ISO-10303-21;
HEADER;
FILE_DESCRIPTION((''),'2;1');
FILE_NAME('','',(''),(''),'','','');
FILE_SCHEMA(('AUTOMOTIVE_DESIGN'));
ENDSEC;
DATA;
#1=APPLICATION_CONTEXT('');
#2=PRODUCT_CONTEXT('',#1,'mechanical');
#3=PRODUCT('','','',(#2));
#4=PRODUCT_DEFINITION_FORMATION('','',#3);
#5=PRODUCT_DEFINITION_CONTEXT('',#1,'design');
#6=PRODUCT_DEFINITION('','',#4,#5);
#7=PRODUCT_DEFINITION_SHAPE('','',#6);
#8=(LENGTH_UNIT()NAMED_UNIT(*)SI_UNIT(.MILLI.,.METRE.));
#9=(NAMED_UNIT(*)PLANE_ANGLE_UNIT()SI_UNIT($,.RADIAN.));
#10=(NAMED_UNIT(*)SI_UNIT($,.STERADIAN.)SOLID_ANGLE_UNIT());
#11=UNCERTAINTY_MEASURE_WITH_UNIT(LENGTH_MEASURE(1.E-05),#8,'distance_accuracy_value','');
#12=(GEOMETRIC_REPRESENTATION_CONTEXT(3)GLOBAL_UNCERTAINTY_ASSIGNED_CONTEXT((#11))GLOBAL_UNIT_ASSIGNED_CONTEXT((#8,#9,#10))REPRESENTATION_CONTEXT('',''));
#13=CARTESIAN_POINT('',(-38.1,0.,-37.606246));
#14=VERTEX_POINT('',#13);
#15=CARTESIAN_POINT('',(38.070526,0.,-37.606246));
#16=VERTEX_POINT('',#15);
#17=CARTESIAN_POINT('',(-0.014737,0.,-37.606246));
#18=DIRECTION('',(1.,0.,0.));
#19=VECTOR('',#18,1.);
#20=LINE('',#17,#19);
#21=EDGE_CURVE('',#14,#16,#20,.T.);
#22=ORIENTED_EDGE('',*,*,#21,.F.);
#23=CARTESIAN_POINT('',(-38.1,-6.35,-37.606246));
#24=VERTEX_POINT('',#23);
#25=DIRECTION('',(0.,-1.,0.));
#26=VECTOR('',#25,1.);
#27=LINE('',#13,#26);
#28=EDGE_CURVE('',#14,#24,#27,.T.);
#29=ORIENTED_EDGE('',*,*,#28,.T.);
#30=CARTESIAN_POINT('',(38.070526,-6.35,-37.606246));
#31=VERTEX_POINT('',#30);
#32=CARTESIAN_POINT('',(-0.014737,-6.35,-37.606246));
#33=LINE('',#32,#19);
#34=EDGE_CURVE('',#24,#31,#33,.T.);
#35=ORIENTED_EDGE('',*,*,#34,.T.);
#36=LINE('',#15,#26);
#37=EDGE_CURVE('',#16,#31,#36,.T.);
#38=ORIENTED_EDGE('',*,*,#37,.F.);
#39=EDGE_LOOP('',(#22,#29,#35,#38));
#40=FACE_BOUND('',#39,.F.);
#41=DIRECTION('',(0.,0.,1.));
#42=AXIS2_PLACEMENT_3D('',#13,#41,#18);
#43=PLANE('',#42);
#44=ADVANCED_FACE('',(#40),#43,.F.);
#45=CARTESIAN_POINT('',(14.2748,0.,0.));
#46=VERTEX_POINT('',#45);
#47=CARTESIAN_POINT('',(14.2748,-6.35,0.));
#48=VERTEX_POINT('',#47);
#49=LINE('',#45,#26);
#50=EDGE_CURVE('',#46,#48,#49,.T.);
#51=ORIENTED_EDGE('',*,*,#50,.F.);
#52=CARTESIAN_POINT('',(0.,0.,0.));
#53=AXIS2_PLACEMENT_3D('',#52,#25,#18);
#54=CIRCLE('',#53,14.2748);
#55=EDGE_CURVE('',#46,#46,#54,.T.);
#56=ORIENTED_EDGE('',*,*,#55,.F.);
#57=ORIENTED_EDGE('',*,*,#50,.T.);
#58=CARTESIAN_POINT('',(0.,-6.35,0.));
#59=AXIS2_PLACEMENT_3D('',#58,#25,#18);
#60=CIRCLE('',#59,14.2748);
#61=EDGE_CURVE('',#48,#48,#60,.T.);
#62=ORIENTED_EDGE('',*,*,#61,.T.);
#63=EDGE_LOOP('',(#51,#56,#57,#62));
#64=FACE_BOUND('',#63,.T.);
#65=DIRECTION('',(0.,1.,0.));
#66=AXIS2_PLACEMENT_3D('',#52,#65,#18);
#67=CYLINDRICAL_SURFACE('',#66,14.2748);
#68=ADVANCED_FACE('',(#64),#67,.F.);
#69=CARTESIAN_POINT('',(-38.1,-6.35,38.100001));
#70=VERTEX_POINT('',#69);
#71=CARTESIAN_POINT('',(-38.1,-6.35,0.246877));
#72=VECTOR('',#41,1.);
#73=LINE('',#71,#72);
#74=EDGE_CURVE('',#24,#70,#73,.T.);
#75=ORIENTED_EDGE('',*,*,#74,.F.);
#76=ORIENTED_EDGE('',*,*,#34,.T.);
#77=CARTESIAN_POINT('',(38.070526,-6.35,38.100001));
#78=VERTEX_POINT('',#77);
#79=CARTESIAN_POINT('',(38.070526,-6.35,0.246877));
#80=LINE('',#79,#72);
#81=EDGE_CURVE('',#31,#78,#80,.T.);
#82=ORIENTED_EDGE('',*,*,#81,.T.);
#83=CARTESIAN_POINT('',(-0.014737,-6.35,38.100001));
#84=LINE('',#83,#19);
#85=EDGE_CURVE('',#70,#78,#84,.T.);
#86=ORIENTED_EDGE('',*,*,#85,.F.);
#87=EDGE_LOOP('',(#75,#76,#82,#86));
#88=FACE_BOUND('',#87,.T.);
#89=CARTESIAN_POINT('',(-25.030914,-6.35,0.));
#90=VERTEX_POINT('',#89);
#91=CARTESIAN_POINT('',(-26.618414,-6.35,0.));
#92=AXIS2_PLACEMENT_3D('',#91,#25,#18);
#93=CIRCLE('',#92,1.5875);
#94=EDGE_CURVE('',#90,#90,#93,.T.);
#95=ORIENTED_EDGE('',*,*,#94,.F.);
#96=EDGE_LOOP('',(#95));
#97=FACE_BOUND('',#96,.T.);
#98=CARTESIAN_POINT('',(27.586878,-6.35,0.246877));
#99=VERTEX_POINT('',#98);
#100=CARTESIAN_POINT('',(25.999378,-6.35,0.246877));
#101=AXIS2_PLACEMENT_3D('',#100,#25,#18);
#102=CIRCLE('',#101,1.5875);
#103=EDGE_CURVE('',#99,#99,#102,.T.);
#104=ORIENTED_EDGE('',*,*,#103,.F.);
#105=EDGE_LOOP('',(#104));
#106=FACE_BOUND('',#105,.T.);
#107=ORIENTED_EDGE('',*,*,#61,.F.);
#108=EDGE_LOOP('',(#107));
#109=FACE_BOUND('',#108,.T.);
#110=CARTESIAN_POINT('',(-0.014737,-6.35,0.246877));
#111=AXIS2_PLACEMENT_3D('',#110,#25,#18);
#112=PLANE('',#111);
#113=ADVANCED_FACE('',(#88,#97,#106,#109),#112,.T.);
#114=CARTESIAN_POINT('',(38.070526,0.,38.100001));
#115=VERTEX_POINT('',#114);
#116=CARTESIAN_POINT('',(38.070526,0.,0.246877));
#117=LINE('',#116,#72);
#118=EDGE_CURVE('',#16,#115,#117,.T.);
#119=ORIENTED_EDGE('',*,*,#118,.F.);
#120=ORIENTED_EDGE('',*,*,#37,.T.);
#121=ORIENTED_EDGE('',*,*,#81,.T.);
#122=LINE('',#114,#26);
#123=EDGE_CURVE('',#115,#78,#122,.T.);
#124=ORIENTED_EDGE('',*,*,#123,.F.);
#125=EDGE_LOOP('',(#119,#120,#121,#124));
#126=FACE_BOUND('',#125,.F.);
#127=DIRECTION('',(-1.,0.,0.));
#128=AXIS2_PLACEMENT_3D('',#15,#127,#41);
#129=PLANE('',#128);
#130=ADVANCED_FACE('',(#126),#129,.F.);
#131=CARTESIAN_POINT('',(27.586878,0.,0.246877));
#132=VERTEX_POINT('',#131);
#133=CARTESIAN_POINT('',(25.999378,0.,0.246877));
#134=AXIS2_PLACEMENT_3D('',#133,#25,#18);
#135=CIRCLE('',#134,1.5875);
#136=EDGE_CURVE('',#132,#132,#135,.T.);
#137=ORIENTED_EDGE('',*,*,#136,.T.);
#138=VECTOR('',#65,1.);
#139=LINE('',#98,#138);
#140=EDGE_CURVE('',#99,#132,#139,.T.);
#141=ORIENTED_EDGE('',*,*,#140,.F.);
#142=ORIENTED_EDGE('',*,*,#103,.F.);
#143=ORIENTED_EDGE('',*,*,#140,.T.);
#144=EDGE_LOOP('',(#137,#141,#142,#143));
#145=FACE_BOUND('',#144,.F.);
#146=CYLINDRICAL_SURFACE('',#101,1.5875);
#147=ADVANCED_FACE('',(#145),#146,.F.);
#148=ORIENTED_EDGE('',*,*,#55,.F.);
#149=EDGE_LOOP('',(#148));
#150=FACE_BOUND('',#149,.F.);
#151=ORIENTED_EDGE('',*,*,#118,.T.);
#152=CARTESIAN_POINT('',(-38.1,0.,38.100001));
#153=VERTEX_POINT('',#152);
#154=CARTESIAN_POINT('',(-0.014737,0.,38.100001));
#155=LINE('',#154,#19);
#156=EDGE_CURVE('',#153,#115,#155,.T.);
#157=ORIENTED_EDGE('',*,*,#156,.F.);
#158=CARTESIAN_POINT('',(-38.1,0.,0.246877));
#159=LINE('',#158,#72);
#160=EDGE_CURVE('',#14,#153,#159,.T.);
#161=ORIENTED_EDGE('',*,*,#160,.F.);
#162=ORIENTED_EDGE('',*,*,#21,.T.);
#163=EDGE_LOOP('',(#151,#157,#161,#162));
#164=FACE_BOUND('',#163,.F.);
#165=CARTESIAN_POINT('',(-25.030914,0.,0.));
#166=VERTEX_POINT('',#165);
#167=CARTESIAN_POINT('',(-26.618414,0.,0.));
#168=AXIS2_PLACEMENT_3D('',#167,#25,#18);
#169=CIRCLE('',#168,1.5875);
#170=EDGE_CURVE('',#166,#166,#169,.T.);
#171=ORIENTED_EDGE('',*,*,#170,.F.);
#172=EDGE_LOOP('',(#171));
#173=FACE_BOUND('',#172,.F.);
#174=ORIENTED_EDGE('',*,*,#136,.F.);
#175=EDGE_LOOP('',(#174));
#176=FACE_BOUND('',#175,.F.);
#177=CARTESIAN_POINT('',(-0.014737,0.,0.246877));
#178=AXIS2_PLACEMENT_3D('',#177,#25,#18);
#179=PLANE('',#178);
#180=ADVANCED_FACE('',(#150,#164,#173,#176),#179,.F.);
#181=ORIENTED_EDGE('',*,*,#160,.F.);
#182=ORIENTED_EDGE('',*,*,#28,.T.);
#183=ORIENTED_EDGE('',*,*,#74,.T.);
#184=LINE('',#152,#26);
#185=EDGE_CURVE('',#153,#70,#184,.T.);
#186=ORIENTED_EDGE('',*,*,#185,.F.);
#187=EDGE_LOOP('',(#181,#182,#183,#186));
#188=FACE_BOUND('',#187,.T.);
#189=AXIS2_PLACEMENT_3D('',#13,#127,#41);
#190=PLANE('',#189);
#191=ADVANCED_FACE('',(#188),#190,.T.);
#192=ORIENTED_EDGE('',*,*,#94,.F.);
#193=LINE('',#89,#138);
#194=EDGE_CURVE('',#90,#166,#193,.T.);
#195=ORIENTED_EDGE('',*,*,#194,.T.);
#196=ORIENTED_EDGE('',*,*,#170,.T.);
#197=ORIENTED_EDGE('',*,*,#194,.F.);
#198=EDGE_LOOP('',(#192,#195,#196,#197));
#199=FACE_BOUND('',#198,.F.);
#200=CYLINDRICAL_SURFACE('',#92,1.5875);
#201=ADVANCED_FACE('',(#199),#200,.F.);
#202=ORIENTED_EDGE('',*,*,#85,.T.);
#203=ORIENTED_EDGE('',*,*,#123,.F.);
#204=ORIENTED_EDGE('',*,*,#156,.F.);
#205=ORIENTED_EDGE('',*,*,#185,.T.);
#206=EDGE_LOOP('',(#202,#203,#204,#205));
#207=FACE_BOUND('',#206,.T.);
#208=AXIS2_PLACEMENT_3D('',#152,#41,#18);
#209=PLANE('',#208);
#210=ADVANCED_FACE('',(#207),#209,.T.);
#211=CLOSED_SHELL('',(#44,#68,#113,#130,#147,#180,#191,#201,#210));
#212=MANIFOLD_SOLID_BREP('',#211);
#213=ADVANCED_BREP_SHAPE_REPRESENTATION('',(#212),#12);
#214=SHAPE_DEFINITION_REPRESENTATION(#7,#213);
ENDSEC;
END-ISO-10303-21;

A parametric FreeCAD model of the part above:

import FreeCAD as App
import Part
import Sketcher
from FreeCAD import Vector
Q = App.Units.Quantity

doc = App.newDocument("Part")
body = doc.addObject("PartDesign::Body", "Body")

# Sketch on XZ plane
sketch1 = body.newObject("Sketcher::SketchObject", "Sketch")
sketch1.AttachmentSupport = (doc.getObject("XZ_Plane"), [""])
sketch1.MapMode = "FlatFace"
sketch1.addGeometry([
    Part.LineSegment(Vector(-38, 38, 0), Vector(-38, -38, 0)),  # 0
    Part.LineSegment(Vector(-38, -38, 0), Vector(38, -38, 0)),  # 1
    Part.LineSegment(Vector(38, -38, 0), Vector(38, 38, 0)),  # 2
    Part.LineSegment(Vector(38, 38, 0), Vector(-38, 38, 0)),  # 3
    Part.Circle(Vector(0, 0, 0), Vector(0, 0, 1), 14),  # 4
], False)
sketch1.addConstraint([
    Sketcher.Constraint("Coincident", 0, 2, 1, 1),
    Sketcher.Constraint("Coincident", 1, 2, 2, 1),
    Sketcher.Constraint("Coincident", 2, 2, 3, 1),
    Sketcher.Constraint("Coincident", 3, 2, 0, 1),
    Sketcher.Constraint("Vertical", 0),
    Sketcher.Constraint("Horizontal", 1),
    Sketcher.Constraint("Vertical", 2),
    Sketcher.Constraint("Horizontal", 3),
    Sketcher.Constraint("Coincident", 4, 3, -1, 1),
    Sketcher.Constraint("Diameter", 4, Q("1.124 in")),
    Sketcher.Constraint("DistanceX", 0, 2, -1, 1, Q("1.5 in")),
    Sketcher.Constraint("DistanceY", -1, 1, 2, 2, Q("1.5 in")),
    Sketcher.Constraint("DistanceX", 1, 1, 1, 2, 76.170526),
    Sketcher.Constraint("DistanceY", 0, 2, 0, 1, 75.706247),
])
pad1 = body.newObject("PartDesign::Pad", "Pad")
pad1.Profile = sketch1
pad1.Length = Q("0.25 in")

# Sketch on XZ plane
sketch2 = body.newObject("Sketcher::SketchObject", "Sketch001")
sketch2.AttachmentSupport = (doc.getObject("XZ_Plane"), [""])
sketch2.MapMode = "FlatFace"
sketch2.AttachmentOffset = App.Placement(Vector(0, 0, 0.25 * 25.4), App.Rotation())
sketch2.addGeometry(Part.Circle(Vector(-26.6, 0, 0), Vector(0, 0, 1), 1.6), False)
sketch2.addConstraint([
    Sketcher.Constraint("PointOnObject", 0, 3, -1),
    Sketcher.Constraint("Diameter", 0, Q("0.125 in")),
    Sketcher.Constraint("DistanceX", 0, 3, -1, 1, 26.618414),
])
pocket1 = body.newObject("PartDesign::Pocket", "Pocket")
pocket1.Profile = sketch2
pocket1.Length = Q("0.25 in")

# Sketch on XZ plane
sketch3 = body.newObject("Sketcher::SketchObject", "Sketch002")
sketch3.AttachmentSupport = (doc.getObject("XZ_Plane"), [""])
sketch3.MapMode = "FlatFace"
sketch3.AttachmentOffset = App.Placement(Vector(0, 0, 0.25 * 25.4), App.Rotation())
sketch3.addGeometry(Part.Circle(Vector(26, 0.2, 0), Vector(0, 0, 1), 1.6), False)
sketch3.addConstraint([
    Sketcher.Constraint("Diameter", 0, Q("0.125 in")),
    Sketcher.Constraint("DistanceX", -1, 1, 0, 3, 25.999378),
    Sketcher.Constraint("DistanceY", -1, 1, 0, 3, 0.246877),
])
pocket2 = body.newObject("PartDesign::Pocket", "Pocket001")
pocket2.Profile = sketch3
pocket2.Length = Q("0.25 in")

doc.recompute()
